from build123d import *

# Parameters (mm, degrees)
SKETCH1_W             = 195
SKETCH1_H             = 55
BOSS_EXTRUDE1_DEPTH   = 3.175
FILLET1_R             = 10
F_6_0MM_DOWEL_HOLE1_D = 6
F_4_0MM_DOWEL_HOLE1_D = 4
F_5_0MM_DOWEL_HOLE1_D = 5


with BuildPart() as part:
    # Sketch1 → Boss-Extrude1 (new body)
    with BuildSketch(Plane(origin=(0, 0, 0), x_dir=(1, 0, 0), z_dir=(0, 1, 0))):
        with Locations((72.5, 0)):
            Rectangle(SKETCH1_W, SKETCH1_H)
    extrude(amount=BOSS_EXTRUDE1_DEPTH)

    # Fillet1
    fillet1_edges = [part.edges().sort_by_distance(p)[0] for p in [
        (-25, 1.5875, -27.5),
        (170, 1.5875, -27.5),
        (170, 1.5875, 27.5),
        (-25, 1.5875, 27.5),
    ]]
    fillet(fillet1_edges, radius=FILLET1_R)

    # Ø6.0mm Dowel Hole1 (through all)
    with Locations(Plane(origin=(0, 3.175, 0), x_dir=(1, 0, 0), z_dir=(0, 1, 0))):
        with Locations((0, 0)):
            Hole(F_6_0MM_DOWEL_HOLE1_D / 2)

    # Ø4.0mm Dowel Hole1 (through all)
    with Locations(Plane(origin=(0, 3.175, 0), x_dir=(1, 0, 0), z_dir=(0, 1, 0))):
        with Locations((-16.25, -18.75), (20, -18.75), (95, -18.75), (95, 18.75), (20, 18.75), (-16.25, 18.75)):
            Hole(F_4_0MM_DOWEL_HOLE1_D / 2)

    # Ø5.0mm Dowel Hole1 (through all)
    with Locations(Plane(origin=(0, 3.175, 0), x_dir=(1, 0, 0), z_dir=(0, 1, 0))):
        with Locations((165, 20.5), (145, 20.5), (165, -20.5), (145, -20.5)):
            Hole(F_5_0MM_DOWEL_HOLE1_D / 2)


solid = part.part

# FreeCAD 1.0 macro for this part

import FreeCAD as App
import Part
import Sketcher
from FreeCAD import Vector


def edges_at(feature, points):
    """Names of the edges that pass closest to the given points."""
    edges = feature.Shape.Edges
    near = lambda p: min(range(len(edges)), key=lambda i: edges[i].distToShape(Part.Vertex(*p))[0])
    return sorted({f"Edge{near(p) + 1}" for p in points})


def add_polygon(sketch, points):
    """Adds a closed chain of lines whose ends are joined by coincident constraints."""
    first, n = sketch.GeometryCount, len(points)
    for a, b in zip(points, points[1:] + points[:1]):
        sketch.addGeometry(Part.LineSegment(App.Vector(*a, 0), App.Vector(*b, 0)), False)
    for i in range(n):
        sketch.addConstraint(Sketcher.Constraint("Coincident", first + i, 2, first + (i + 1) % n, 1))

doc = App.newDocument("Part")
params = doc.addObject("Spreadsheet::Sheet", "Params")
for row, (alias, value) in enumerate([
    ("sketch1_width", "195 mm"),
    ("sketch1_height", "55 mm"),
    ("pad1_length", "3.175 mm"),
    ("fillet_radius", "10 mm"),
    ("sketch2_diameter", "6 mm"),
    ("hole_diameter", "6 mm"),
    ("sketch3_diameter", "4 mm"),
    ("hole2_diameter", "4 mm"),
    ("sketch4_diameter", "5 mm"),
    ("hole3_diameter", "5 mm"),
], start=1):
    params.set(f"A{row}", alias)
    params.set(f"B{row}", "=" + value)
    params.setAlias(f"B{row}", alias)

body = doc.addObject("PartDesign::Body", "Body")

sketch1 = doc.addObject("Sketcher::SketchObject", "Sketch")
body.addObject(sketch1)
sketch1.AttachmentSupport = (doc.XZ_Plane, [""])
sketch1.MapMode = "FlatFace"
add_polygon(sketch1, [(-25, -27.5), (-25, 27.5), (170, 27.5), (170, -27.5)])
sketch1.addConstraint(Sketcher.Constraint("Vertical", 0))
sketch1.addConstraint(Sketcher.Constraint("Horizontal", 1))
sketch1.addConstraint(Sketcher.Constraint("Vertical", 2))
sketch1.addConstraint(Sketcher.Constraint("Horizontal", 3))
sketch1.addConstraint(Sketcher.Constraint("DistanceX", 1, 1, 1, 2, 195.0))
sketch1.addConstraint(Sketcher.Constraint("DistanceY", 0, 1, 0, 2, 55.0))
sketch1.addConstraint(Sketcher.Constraint("DistanceX", 0, 2, -1, 1, 25.0))
sketch1.addConstraint(Sketcher.Constraint("DistanceY", -1, 1, 0, 2, 27.5))
sketch1.setExpression("Constraints[8]", "Params.sketch1_width")
sketch1.setExpression("Constraints[9]", "Params.sketch1_height")
pad1 = doc.addObject("PartDesign::Pad", "Pad")
body.addObject(pad1)
pad1.Profile = sketch1
pad1.setExpression("Length", "Params.pad1_length")
pad1.Reversed = True
doc.recompute()

fillet = doc.addObject("PartDesign::Fillet", "Fillet")
body.addObject(fillet)
fillet.Base = (pad1, edges_at(pad1, [
    (-25, 1.587, -27.5),
    (170, 1.587, -27.5),
    (170, 1.587, 27.5),
    (-25, 1.587, 27.5),
]))
fillet.setExpression("Radius", "Params.fillet_radius")

sketch2 = doc.addObject("Sketcher::SketchObject", "Sketch001")
body.addObject(sketch2)
sketch2.AttachmentSupport = (doc.XZ_Plane, [""])
sketch2.MapMode = "FlatFace"
sketch2.AttachmentOffset = App.Placement(Vector(0, 0, -3.175), App.Rotation())
sketch2.addGeometry(Part.Circle(Vector(0, 0, 0), Vector(0, 0, 1), 3), False)
sketch2.addConstraint(Sketcher.Constraint("Coincident", 0, 3, -1, 1))
sketch2.addConstraint(Sketcher.Constraint("Diameter", 0, 6.0))
sketch2.setExpression("Constraints[1]", "Params.sketch2_diameter")
doc.recompute()
hole = doc.addObject("PartDesign::Hole", "Hole")
body.addObject(hole)
hole.Profile = sketch2
hole.ThreadType = "None"
hole.setExpression("Diameter", "Params.hole_diameter")
hole.DepthType = "ThroughAll"
hole.Reversed = True

sketch3 = doc.addObject("Sketcher::SketchObject", "Sketch002")
body.addObject(sketch3)
sketch3.AttachmentSupport = (doc.XZ_Plane, [""])
sketch3.MapMode = "FlatFace"
sketch3.AttachmentOffset = App.Placement(Vector(0, 0, -3.175), App.Rotation())
sketch3.addGeometry(Part.Circle(Vector(-16.25, 18.75, 0), Vector(0, 0, 1), 2), False)
sketch3.addGeometry(Part.Circle(Vector(20, 18.75, 0), Vector(0, 0, 1), 2), False)
sketch3.addGeometry(Part.Circle(Vector(95, 18.75, 0), Vector(0, 0, 1), 2), False)
sketch3.addGeometry(Part.Circle(Vector(95, -18.75, 0), Vector(0, 0, 1), 2), False)
sketch3.addGeometry(Part.Circle(Vector(20, -18.75, 0), Vector(0, 0, 1), 2), False)
sketch3.addGeometry(Part.Circle(Vector(-16.25, -18.75, 0), Vector(0, 0, 1), 2), False)
sketch3.addConstraint(Sketcher.Constraint("Equal", 0, 1))
sketch3.addConstraint(Sketcher.Constraint("Equal", 1, 2))
sketch3.addConstraint(Sketcher.Constraint("Equal", 2, 3))
sketch3.addConstraint(Sketcher.Constraint("Equal", 3, 4))
sketch3.addConstraint(Sketcher.Constraint("Equal", 4, 5))
sketch3.addConstraint(Sketcher.Constraint("Symmetric", 2, 3, 3, 3, -1))
sketch3.addConstraint(Sketcher.Constraint("Symmetric", 1, 3, 4, 3, -1))
sketch3.addConstraint(Sketcher.Constraint("Symmetric", 0, 3, 5, 3, -1))
sketch3.addConstraint(Sketcher.Constraint("Horizontal", 0, 3, 1, 3))
sketch3.addConstraint(Sketcher.Constraint("Horizontal", 1, 3, 2, 3))
sketch3.addConstraint(Sketcher.Constraint("Diameter", 0, 4.0))
sketch3.addConstraint(Sketcher.Constraint("DistanceX", -1, 1, 1, 3, 20.0))
sketch3.addConstraint(Sketcher.Constraint("DistanceX", -1, 1, 2, 3, 95.0))
sketch3.addConstraint(Sketcher.Constraint("DistanceY", 3, 3, 2, 3, 37.5))
sketch3.addConstraint(Sketcher.Constraint("DistanceX", 0, 3, -1, 1, 16.25))
sketch3.setExpression("Constraints[10]", "Params.sketch3_diameter")
doc.recompute()
hole2 = doc.addObject("PartDesign::Hole", "Hole001")
body.addObject(hole2)
hole2.Profile = sketch3
hole2.ThreadType = "None"
hole2.setExpression("Diameter", "Params.hole2_diameter")
hole2.DepthType = "ThroughAll"
hole2.Reversed = True

sketch4 = doc.addObject("Sketcher::SketchObject", "Sketch003")
body.addObject(sketch4)
sketch4.AttachmentSupport = (doc.XZ_Plane, [""])
sketch4.MapMode = "FlatFace"
sketch4.AttachmentOffset = App.Placement(Vector(0, 0, -3.175), App.Rotation())
sketch4.addGeometry(Part.Circle(Vector(165, -20.5, 0), Vector(0, 0, 1), 2.5), False)
sketch4.addGeometry(Part.Circle(Vector(145, -20.5, 0), Vector(0, 0, 1), 2.5), False)
sketch4.addGeometry(Part.Circle(Vector(165, 20.5, 0), Vector(0, 0, 1), 2.5), False)
sketch4.addGeometry(Part.Circle(Vector(145, 20.5, 0), Vector(0, 0, 1), 2.5), False)
sketch4.addConstraint(Sketcher.Constraint("Equal", 0, 1))
sketch4.addConstraint(Sketcher.Constraint("Equal", 1, 2))
sketch4.addConstraint(Sketcher.Constraint("Equal", 2, 3))
sketch4.addConstraint(Sketcher.Constraint("Symmetric", 0, 3, 2, 3, -1))
sketch4.addConstraint(Sketcher.Constraint("Symmetric", 1, 3, 3, 3, -1))
sketch4.addConstraint(Sketcher.Constraint("Horizontal", 0, 3, 1, 3))
sketch4.addConstraint(Sketcher.Constraint("Diameter", 0, 5.0))
sketch4.addConstraint(Sketcher.Constraint("DistanceX", -1, 1, 0, 3, 165.0))
sketch4.addConstraint(Sketcher.Constraint("DistanceX", -1, 1, 1, 3, 145.0))
sketch4.addConstraint(Sketcher.Constraint("DistanceY", 0, 3, 2, 3, 41.0))
sketch4.setExpression("Constraints[6]", "Params.sketch4_diameter")
doc.recompute()
hole3 = doc.addObject("PartDesign::Hole", "Hole002")
body.addObject(hole3)
hole3.Profile = sketch4
hole3.ThreadType = "None"
hole3.setExpression("Diameter", "Params.hole3_diameter")
hole3.DepthType = "ThroughAll"
hole3.Reversed = True

doc.recompute()
